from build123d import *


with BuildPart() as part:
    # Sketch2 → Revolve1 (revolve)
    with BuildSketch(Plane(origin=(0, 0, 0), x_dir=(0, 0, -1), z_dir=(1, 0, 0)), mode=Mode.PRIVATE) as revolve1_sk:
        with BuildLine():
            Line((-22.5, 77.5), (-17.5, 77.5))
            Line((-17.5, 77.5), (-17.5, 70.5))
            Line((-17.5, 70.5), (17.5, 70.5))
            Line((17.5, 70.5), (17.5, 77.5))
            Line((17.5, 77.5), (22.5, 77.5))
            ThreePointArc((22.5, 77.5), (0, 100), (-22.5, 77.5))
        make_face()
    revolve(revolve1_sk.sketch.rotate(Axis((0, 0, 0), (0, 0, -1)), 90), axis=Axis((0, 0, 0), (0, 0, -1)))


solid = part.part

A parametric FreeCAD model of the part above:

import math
import FreeCAD as App
import Part
import Sketcher
from FreeCAD import Vector
Q = App.Units.Quantity

doc = App.newDocument("Part")
body = doc.addObject("PartDesign::Body", "Body")

sketch1 = doc.addObject("Sketcher::SketchObject", "Sketch")
body.addObject(sketch1)
sketch1.AttachmentSupport = (doc.YZ_Plane, [""])
sketch1.MapMode = "FlatFace"
sketch1.addGeometry([
    Part.LineSegment(Vector(77.5, 22.5, 0), Vector(77.5, 17.5, 0)),
    Part.LineSegment(Vector(77.5, 17.5, 0), Vector(70.5, 17.5, 0)),
    Part.LineSegment(Vector(70.5, 17.5, 0), Vector(70.5, -17.5, 0)),
    Part.LineSegment(Vector(70.5, -17.5, 0), Vector(77.5, -17.5, 0)),
    Part.LineSegment(Vector(77.5, -17.5, 0), Vector(77.5, -22.5, 0)),
    Part.ArcOfCircle(Part.Circle(Vector(77.5, 0, 0), Vector(0, 0, 1), 22.5), math.radians(-90), math.radians(90)),
], False)
sketch1.addConstraint([
    Sketcher.Constraint("Coincident", 0, 2, 1, 1),
    Sketcher.Constraint("Coincident", 1, 2, 2, 1),
    Sketcher.Constraint("Coincident", 2, 2, 3, 1),
    Sketcher.Constraint("Coincident", 3, 2, 4, 1),
    Sketcher.Constraint("Coincident", 4, 2, 5, 1),
    Sketcher.Constraint("Coincident", 5, 2, 0, 1),
    Sketcher.Constraint("Vertical", 0),
    Sketcher.Constraint("Horizontal", 1),
    Sketcher.Constraint("Vertical", 2),
    Sketcher.Constraint("Horizontal", 3),
    Sketcher.Constraint("Vertical", 4),
    Sketcher.Constraint("Symmetric", 0, 2, 3, 2, -1),
    Sketcher.Constraint("PointOnObject", 5, 3, -1),
    Sketcher.Constraint("Vertical", 5, 3, 0, 2),
    Sketcher.Constraint("Radius", 5, Q("22.5 mm")),
    Sketcher.Constraint("DistanceX", 1, 2, 1, 1, Q("7 mm")),
    Sketcher.Constraint("DistanceY", 0, 2, 0, 1, Q("5 mm")),
    Sketcher.Constraint("DistanceX", -1, 1, 5, 3, Q("77.5 mm")),
])
revolution = doc.addObject("PartDesign::Revolution", "Revolution")
body.addObject(revolution)
revolution.Profile = sketch1
revolution.ReferenceAxis = (sketch1, ["V_Axis"])
revolution.Angle = 360

doc.recompute()
